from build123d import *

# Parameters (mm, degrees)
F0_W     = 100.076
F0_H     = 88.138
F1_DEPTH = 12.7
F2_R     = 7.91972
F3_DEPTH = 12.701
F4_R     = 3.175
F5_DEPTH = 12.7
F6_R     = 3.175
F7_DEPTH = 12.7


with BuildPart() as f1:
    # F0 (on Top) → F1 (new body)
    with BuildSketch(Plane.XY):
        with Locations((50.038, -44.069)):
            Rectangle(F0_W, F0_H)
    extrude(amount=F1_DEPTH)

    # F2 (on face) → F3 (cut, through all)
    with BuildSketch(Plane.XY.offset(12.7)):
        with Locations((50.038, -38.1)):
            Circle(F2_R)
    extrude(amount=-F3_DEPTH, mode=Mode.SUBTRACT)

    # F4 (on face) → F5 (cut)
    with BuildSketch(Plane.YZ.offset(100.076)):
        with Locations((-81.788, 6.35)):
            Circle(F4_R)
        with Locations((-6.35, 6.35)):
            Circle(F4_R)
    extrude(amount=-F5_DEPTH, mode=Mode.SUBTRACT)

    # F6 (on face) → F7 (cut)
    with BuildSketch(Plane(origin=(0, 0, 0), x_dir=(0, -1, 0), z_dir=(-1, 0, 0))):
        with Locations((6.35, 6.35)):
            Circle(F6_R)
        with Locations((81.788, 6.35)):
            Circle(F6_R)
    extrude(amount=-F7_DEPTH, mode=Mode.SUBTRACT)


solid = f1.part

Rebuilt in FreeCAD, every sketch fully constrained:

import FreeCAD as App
import Part
import Sketcher
from FreeCAD import Vector
Q = App.Units.Quantity

doc = App.newDocument("Part")
params = doc.addObject("Spreadsheet::Sheet", "Params")
for row, (alias, value) in enumerate([
    ("sketch1_width", "3.94 in"),
    ("sketch1_height", "3.47 in"),
    ("pad1_length", "0.5 in"),
    ("sketch3_diameter", "0.25 in"),
    ("pocket2_length", "0.5 in"),
    ("sketch4_diameter", "0.25 in"),
    ("pocket3_length", "0.5 in"),
], start=1):
    params.set(f"A{row}", alias)
    params.set(f"B{row}", "=" + value)
    params.setAlias(f"B{row}", alias)

body = doc.addObject("PartDesign::Body", "Body")

# Sketch on XY plane
sketch1 = body.newObject("Sketcher::SketchObject", "Sketch")
sketch1.AttachmentSupport = (doc.getObject("XY_Plane"), [""])
sketch1.MapMode = "FlatFace"
sketch1.addGeometry(Part.LineSegment(Vector(0, 0, 0), Vector(0, -88.138, 0)), False)
sketch1.addGeometry(Part.LineSegment(Vector(0, -88.138, 0), Vector(100.076, -88.138, 0)), False)
sketch1.addGeometry(Part.LineSegment(Vector(100.076, -88.138, 0), Vector(100.076, 0, 0)), False)
sketch1.addGeometry(Part.LineSegment(Vector(100.076, 0, 0), Vector(0, 0, 0)), False)
sketch1.addConstraint(Sketcher.Constraint("Coincident", 0, 2, 1, 1))
sketch1.addConstraint(Sketcher.Constraint("Coincident", 1, 2, 2, 1))
sketch1.addConstraint(Sketcher.Constraint("Coincident", 2, 2, 3, 1))
sketch1.addConstraint(Sketcher.Constraint("Coincident", 3, 2, 0, 1))
sketch1.addConstraint(Sketcher.Constraint("Vertical", 0))
sketch1.addConstraint(Sketcher.Constraint("Horizontal", 1))
sketch1.addConstraint(Sketcher.Constraint("Vertical", 2))
sketch1.addConstraint(Sketcher.Constraint("Horizontal", 3))
sketch1.addConstraint(Sketcher.Constraint("Coincident", 3, 2, -1, 1))
sketch1.addConstraint(Sketcher.Constraint("DistanceX", 1, 1, 1, 2, Q("3.94 in")))
sketch1.addConstraint(Sketcher.Constraint("DistanceY", 0, 2, 0, 1, Q("3.47 in")))
sketch1.setExpression("Constraints[9]", "Params.sketch1_width")
sketch1.setExpression("Constraints[10]", "Params.sketch1_height")
pad1 = body.newObject("PartDesign::Pad", "Pad")
pad1.Profile = sketch1
pad1.setExpression("Length", "Params.pad1_length")

# Sketch on XY plane
sketch2 = body.newObject("Sketcher::SketchObject", "Sketch001")
sketch2.AttachmentSupport = (doc.getObject("XY_Plane"), [""])
sketch2.MapMode = "FlatFace"
sketch2.AttachmentOffset = App.Placement(Vector(0, 0, 0.5 * 25.4), App.Rotation())
sketch2.addGeometry(Part.Circle(Vector(50.038, -38.1, 0), Vector(0, 0, 1), 7.91972), False)
sketch2.addConstraint(Sketcher.Constraint("Diameter", 0, Q("0.6236 in")))
sketch2.addConstraint(Sketcher.Constraint("DistanceY", 0, 3, -1, 1, Q("1.5 in")))
sketch2.addConstraint(Sketcher.Constraint("DistanceX", -1, 1, 0, 3, Q("1.97 in")))
pocket1 = body.newObject("PartDesign::Pocket", "Pocket")
pocket1.Profile = sketch2
pocket1.Type = "ThroughAll"

# Sketch on YZ plane
sketch3 = body.newObject("Sketcher::SketchObject", "Sketch002")
sketch3.AttachmentSupport = (doc.getObject("YZ_Plane"), [""])
sketch3.MapMode = "FlatFace"
sketch3.AttachmentOffset = App.Placement(Vector(0, 0, 3.94 * 25.4), App.Rotation())
sketch3.addGeometry(Part.Circle(Vector(-81.788, 6.35, 0), Vector(0, 0, 1), 3.175), False)
sketch3.addGeometry(Part.Circle(Vector(-6.35, 6.35, 0), Vector(0, 0, 1), 3.175), False)
sketch3.addConstraint(Sketcher.Constraint("Equal", 0, 1))
sketch3.addConstraint(Sketcher.Constraint("Horizontal", 0, 3, 1, 3))
sketch3.addConstraint(Sketcher.Constraint("Diameter", 0, Q("0.25 in")))
sketch3.addConstraint(Sketcher.Constraint("DistanceX", 0, 3, -1, 1, Q("3.22 in")))
sketch3.addConstraint(Sketcher.Constraint("DistanceY", -1, 1, 0, 3, Q("0.25 in")))
sketch3.addConstraint(Sketcher.Constraint("DistanceX", 1, 3, -1, 1, Q("0.25 in")))
sketch3.setExpression("Constraints[2]", "Params.sketch3_diameter")
pocket2 = body.newObject("PartDesign::Pocket", "Pocket001")
pocket2.Profile = sketch3
pocket2.setExpression("Length", "Params.pocket2_length")

# Sketch on YZ plane
sketch4 = body.newObject("Sketcher::SketchObject", "Sketch003")
sketch4.AttachmentSupport = (doc.getObject("YZ_Plane"), [""])
sketch4.MapMode = "FlatFace"
sketch4.addGeometry(Part.Circle(Vector(-6.35, 6.35, 0), Vector(0, 0, 1), 3.175), False)
sketch4.addGeometry(Part.Circle(Vector(-81.788, 6.35, 0), Vector(0, 0, 1), 3.175), False)
sketch4.addConstraint(Sketcher.Constraint("Equal", 0, 1))
sketch4.addConstraint(Sketcher.Constraint("Horizontal", 0, 3, 1, 3))
sketch4.addConstraint(Sketcher.Constraint("Diameter", 0, Q("0.25 in")))
sketch4.addConstraint(Sketcher.Constraint("DistanceX", 0, 3, -1, 1, Q("0.25 in")))
sketch4.addConstraint(Sketcher.Constraint("DistanceY", -1, 1, 0, 3, Q("0.25 in")))
sketch4.addConstraint(Sketcher.Constraint("DistanceX", 1, 3, -1, 1, Q("3.22 in")))
sketch4.setExpression("Constraints[2]", "Params.sketch4_diameter")
pocket3 = body.newObject("PartDesign::Pocket", "Pocket002")
pocket3.Profile = sketch4
pocket3.setExpression("Length", "Params.pocket3_length")
pocket3.Reversed = True

doc.recompute()
